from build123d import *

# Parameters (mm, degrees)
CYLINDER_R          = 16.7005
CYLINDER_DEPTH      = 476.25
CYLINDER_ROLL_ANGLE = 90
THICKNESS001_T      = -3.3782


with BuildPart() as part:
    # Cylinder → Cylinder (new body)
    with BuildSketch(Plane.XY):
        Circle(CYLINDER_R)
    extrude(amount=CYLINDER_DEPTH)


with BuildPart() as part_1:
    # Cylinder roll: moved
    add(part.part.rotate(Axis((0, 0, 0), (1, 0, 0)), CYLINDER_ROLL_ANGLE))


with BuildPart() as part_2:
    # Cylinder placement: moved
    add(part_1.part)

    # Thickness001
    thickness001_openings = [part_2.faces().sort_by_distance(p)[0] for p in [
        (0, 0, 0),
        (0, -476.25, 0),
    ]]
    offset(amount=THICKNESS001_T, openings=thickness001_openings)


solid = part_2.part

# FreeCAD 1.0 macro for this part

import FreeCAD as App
import Part
import Sketcher

V = App.Vector
Q = App.Units.Quantity


def faces_at(feature, points):
    """Names of the faces that lie closest to the given points."""
    faces = feature.Shape.Faces
    near = lambda p: min(range(len(faces)), key=lambda i: faces[i].distToShape(Part.Vertex(*p))[0])
    return sorted({f"Face{near(p) + 1}" for p in points})

doc = App.newDocument("Part")
body = doc.addObject("PartDesign::Body", "Body")

# Sketch on XY plane
sketch1 = body.newObject("Sketcher::SketchObject", "Sketch")
sketch1.AttachmentSupport = (doc.getObject("XY_Plane"), [""])
sketch1.MapMode = "FlatFace"
sketch1.addGeometry(Part.Circle(V(0, 0, 0), V(0, 0, 1), 16.7005), False)
sketch1.addConstraint(Sketcher.Constraint("Coincident", 0, 3, -1, 1))
sketch1.addConstraint(Sketcher.Constraint("Diameter", 0, Q("1.315 in")))
pad1 = body.newObject("PartDesign::Pad", "Pad")
pad1.Profile = sketch1
pad1.Length = Q("18.75 in")
body2 = doc.addObject("PartDesign::Body", "Body001")
doc.recompute()

body.Placement = App.Placement(V(0, 0, 0), App.Rotation(V(1, 0, 0), 90))
boolean = body2.newObject("PartDesign::Boolean", "Boolean")
boolean.Type = "Fuse"
boolean.addObjects([body])
doc.recompute()

thickness = body2.newObject("PartDesign::Thickness", "Thickness")
thickness.Base = (boolean, faces_at(boolean, [(0, 0, 0), (0, -476.25, 0)]))
thickness.Value = Q("0.133 in")
thickness.Reversed = True
thickness.Join = "Arc"

doc.recompute()
